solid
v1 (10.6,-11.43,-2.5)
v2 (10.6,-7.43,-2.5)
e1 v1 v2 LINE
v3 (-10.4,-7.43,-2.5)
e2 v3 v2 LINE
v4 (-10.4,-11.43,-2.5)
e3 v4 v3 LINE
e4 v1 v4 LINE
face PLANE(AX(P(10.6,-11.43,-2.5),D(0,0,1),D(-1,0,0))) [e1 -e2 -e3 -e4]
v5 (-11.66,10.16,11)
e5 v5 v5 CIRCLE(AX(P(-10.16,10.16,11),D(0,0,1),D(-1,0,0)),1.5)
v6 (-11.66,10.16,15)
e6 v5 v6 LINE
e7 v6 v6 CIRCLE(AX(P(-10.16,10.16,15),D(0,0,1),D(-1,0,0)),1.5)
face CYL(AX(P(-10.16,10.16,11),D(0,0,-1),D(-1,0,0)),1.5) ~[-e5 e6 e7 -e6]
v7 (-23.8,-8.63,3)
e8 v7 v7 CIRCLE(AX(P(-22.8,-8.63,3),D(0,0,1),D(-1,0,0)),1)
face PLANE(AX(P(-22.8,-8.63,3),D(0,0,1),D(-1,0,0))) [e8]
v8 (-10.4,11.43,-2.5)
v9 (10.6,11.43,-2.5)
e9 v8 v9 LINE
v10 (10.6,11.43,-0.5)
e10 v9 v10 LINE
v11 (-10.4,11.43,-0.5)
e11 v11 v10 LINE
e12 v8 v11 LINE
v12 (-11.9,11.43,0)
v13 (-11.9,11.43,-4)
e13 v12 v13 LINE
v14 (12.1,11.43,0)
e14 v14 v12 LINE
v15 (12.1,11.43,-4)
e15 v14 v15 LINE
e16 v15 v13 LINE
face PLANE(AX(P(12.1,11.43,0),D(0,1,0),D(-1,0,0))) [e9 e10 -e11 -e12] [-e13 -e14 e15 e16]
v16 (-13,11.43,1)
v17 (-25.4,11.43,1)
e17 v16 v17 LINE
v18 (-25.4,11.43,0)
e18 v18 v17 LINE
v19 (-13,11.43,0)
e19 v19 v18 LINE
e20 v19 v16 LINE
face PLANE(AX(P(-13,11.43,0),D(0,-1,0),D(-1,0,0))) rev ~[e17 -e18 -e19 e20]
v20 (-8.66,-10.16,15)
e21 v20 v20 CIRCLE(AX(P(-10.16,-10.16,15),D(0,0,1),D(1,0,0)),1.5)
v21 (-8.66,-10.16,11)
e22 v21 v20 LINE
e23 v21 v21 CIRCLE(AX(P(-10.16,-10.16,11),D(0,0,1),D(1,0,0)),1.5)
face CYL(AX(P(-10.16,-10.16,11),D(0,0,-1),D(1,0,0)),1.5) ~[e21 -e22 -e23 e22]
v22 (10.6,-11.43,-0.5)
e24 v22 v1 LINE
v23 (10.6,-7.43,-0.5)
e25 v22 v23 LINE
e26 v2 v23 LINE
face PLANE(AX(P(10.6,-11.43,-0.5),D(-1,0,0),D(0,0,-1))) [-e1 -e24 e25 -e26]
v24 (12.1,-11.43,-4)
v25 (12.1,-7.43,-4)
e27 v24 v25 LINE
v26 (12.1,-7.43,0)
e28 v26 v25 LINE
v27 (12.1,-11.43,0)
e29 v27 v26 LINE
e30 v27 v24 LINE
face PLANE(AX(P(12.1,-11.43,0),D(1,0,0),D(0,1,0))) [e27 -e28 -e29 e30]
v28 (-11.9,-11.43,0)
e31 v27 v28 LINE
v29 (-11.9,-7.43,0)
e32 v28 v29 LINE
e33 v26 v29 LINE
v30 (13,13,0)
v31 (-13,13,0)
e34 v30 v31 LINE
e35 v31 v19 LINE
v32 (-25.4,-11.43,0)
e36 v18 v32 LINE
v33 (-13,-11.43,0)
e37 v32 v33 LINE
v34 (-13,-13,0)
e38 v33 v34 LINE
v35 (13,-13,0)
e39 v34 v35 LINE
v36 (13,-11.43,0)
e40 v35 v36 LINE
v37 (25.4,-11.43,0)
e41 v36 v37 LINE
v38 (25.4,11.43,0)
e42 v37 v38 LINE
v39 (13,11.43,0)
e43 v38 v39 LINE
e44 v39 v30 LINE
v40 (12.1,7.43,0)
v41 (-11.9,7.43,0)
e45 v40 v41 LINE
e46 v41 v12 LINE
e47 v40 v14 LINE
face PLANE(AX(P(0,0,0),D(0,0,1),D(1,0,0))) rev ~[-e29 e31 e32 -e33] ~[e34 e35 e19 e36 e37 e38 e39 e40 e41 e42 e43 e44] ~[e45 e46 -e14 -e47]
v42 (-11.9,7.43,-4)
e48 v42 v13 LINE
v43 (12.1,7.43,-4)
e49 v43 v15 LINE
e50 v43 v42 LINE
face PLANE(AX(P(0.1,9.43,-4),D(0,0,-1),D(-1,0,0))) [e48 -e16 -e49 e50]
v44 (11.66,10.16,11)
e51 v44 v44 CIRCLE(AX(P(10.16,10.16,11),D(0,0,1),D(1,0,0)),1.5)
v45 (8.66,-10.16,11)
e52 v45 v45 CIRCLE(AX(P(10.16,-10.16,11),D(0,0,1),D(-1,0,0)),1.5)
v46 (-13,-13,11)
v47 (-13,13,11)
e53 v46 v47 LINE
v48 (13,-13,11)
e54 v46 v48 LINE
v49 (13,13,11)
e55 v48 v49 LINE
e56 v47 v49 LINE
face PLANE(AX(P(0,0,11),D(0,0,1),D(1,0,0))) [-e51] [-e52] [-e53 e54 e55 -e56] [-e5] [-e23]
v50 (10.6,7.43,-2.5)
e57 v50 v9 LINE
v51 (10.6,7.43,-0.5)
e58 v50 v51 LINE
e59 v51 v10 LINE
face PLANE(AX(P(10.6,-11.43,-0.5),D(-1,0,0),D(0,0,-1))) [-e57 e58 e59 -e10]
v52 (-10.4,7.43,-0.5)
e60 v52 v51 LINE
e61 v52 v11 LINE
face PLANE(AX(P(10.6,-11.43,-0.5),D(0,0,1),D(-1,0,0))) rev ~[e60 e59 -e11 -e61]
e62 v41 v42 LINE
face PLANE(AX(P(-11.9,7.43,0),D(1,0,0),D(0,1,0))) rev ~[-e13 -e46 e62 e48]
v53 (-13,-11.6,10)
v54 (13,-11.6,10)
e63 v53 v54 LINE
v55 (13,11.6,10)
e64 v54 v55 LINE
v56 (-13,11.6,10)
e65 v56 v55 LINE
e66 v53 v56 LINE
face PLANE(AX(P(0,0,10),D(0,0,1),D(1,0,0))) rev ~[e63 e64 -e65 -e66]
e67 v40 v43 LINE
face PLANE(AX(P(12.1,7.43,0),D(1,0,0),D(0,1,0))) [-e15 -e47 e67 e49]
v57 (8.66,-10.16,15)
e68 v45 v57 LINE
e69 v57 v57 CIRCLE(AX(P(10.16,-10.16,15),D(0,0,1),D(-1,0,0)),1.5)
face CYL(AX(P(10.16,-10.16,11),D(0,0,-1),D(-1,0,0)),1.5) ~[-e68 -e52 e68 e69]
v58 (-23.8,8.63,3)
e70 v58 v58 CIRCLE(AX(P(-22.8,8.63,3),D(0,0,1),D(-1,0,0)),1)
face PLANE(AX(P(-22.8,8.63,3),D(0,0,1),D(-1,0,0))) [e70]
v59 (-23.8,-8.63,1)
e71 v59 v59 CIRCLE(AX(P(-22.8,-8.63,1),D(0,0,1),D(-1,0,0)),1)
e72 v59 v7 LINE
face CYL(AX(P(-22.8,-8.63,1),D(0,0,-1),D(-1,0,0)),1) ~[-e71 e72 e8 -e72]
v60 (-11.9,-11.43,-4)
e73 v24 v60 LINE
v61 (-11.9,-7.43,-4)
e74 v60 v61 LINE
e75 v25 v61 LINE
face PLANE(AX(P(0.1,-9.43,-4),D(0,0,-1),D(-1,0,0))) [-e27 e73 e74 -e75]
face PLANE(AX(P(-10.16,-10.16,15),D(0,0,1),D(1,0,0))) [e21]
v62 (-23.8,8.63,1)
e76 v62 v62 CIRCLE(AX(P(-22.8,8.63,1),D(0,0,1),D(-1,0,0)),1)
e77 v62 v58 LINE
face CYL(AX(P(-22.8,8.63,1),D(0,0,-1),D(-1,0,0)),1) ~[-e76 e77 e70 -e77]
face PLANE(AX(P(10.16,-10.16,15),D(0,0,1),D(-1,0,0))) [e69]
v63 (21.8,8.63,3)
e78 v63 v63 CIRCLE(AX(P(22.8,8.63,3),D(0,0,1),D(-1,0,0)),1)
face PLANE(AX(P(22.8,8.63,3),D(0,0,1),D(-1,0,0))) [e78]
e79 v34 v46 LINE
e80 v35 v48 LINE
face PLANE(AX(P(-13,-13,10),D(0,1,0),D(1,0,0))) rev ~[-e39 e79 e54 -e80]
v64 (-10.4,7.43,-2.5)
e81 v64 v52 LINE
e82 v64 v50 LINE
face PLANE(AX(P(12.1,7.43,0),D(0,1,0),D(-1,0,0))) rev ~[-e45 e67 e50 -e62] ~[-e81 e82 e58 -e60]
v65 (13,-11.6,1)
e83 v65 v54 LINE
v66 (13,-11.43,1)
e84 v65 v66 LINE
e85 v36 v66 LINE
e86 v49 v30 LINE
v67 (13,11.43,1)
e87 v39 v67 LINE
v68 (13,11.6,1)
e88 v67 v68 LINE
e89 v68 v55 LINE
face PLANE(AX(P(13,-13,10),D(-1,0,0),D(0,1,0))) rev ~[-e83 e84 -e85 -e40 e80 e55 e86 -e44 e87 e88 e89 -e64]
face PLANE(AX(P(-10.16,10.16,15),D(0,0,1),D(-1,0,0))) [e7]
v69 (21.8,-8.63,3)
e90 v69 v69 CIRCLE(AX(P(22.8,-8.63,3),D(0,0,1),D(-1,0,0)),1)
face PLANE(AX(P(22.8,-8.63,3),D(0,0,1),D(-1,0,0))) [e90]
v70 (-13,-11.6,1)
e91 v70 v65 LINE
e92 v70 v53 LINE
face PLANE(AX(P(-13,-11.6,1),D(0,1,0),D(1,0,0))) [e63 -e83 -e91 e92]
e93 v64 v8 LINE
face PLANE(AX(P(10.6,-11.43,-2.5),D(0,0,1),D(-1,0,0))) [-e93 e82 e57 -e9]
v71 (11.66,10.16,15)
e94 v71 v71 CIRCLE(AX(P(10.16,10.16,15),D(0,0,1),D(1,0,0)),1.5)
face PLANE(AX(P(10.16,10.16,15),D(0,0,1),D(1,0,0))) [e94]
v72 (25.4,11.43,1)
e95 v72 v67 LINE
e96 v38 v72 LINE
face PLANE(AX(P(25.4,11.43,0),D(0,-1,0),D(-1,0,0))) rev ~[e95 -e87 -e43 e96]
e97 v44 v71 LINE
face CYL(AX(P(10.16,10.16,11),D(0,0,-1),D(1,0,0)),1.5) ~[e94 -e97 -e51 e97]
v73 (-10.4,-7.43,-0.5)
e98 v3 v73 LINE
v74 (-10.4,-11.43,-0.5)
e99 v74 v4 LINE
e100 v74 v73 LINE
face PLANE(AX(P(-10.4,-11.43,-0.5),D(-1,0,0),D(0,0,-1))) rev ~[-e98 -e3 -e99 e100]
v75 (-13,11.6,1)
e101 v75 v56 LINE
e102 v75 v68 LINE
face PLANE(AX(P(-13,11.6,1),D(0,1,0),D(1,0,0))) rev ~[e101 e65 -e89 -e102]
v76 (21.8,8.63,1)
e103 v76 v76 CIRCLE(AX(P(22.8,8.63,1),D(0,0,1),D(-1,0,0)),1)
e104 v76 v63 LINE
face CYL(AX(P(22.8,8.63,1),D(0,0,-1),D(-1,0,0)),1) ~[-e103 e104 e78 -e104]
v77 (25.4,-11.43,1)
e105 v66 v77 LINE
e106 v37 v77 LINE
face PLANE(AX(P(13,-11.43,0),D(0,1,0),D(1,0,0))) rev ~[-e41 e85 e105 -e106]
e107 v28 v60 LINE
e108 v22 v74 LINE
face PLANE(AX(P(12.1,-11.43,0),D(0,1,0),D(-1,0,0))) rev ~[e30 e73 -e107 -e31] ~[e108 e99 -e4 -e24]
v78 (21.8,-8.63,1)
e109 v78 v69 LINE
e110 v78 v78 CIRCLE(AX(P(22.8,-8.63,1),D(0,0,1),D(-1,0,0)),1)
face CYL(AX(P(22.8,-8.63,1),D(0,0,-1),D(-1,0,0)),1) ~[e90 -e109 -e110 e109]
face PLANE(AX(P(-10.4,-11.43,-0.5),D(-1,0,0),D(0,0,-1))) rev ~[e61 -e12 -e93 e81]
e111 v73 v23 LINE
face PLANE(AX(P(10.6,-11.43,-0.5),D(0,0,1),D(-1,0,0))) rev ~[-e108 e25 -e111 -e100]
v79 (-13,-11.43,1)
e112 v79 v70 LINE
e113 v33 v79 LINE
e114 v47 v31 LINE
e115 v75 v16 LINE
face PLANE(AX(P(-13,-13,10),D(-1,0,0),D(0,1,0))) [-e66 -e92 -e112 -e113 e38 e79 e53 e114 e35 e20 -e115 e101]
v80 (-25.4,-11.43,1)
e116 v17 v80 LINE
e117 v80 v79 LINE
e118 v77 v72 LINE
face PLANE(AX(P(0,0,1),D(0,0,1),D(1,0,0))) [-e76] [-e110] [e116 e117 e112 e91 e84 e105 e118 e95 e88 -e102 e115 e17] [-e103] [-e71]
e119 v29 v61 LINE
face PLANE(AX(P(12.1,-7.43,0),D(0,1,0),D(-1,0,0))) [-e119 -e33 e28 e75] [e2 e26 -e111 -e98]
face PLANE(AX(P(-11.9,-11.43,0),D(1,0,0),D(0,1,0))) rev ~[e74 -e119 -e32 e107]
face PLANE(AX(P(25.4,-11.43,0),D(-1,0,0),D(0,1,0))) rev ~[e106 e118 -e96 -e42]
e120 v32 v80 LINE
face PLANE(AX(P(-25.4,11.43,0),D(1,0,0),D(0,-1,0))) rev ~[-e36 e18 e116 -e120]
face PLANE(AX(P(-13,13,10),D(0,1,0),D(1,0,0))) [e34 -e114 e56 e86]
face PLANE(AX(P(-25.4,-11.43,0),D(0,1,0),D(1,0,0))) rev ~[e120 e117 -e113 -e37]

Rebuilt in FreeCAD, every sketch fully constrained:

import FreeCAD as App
import Part
import Sketcher
from FreeCAD import Vector

doc = App.newDocument("Part")
body = doc.addObject("PartDesign::Body", "Body")

# Sketch on XY plane
sketch1 = body.newObject("Sketcher::SketchObject", "Sketch")
sketch1.AttachmentSupport = (doc.getObject("XY_Plane"), [""])
sketch1.MapMode = "FlatFace"
sketch1.addGeometry([
    Part.LineSegment(Vector(-13, -11.4, 0), Vector(-13, -13, 0)),  # 0
    Part.LineSegment(Vector(-13, -13, 0), Vector(13, -13, 0)),  # 1
    Part.LineSegment(Vector(13, -13, 0), Vector(13, -11.4, 0)),  # 2
    Part.LineSegment(Vector(13, -11.4, 0), Vector(25.4, -11.4, 0)),  # 3
    Part.LineSegment(Vector(25.4, -11.4, 0), Vector(25.4, 11.4, 0)),  # 4
    Part.LineSegment(Vector(25.4, 11.4, 0), Vector(13, 11.4, 0)),  # 5
    Part.LineSegment(Vector(13, 11.4, 0), Vector(13, 13, 0)),  # 6
    Part.LineSegment(Vector(13, 13, 0), Vector(-13, 13, 0)),  # 7
    Part.LineSegment(Vector(-13, 13, 0), Vector(-13, 11.4, 0)),  # 8
    Part.LineSegment(Vector(-13, 11.4, 0), Vector(-25.4, 11.4, 0)),  # 9
    Part.LineSegment(Vector(-25.4, 11.4, 0), Vector(-25.4, -11.4, 0)),  # 10
    Part.LineSegment(Vector(-25.4, -11.4, 0), Vector(-13, -11.4, 0)),  # 11
], False)
sketch1.addConstraint([
    Sketcher.Constraint("Coincident", 0, 2, 1, 1),
    Sketcher.Constraint("Coincident", 1, 2, 2, 1),
    Sketcher.Constraint("Coincident", 2, 2, 3, 1),
    Sketcher.Constraint("Coincident", 3, 2, 4, 1),
    Sketcher.Constraint("Coincident", 4, 2, 5, 1),
    Sketcher.Constraint("Coincident", 5, 2, 6, 1),
    Sketcher.Constraint("Coincident", 6, 2, 7, 1),
    Sketcher.Constraint("Coincident", 7, 2, 8, 1),
    Sketcher.Constraint("Coincident", 8, 2, 9, 1),
    Sketcher.Constraint("Coincident", 9, 2, 10, 1),
    Sketcher.Constraint("Coincident", 10, 2, 11, 1),
    Sketcher.Constraint("Coincident", 11, 2, 0, 1),
    Sketcher.Constraint("Vertical", 0),
    Sketcher.Constraint("Horizontal", 1),
    Sketcher.Constraint("Vertical", 2),
    Sketcher.Constraint("Horizontal", 3),
    Sketcher.Constraint("Vertical", 4),
    Sketcher.Constraint("Horizontal", 5),
    Sketcher.Constraint("Vertical", 6),
    Sketcher.Constraint("Horizontal", 7),
    Sketcher.Constraint("Vertical", 8),
    Sketcher.Constraint("Horizontal", 9),
    Sketcher.Constraint("Vertical", 10),
    Sketcher.Constraint("Horizontal", 11),
    Sketcher.Constraint("Symmetric", 0, 2, 6, 2, -1, 1),
    Sketcher.Constraint("Symmetric", 2, 2, 8, 2, -1, 1),
    Sketcher.Constraint("Symmetric", 4, 2, 10, 2, -1, 1),
    Sketcher.Constraint("Symmetric", 5, 2, 8, 2, -2),
    Sketcher.Constraint("DistanceX", 1, 1, 1, 2, 26.0),
    Sketcher.Constraint("DistanceX", 3, 1, 3, 2, 12.4),
    Sketcher.Constraint("DistanceY", 0, 2, -1, 1, 13.0),
    Sketcher.Constraint("DistanceY", 0, 2, 0, 1, 1.57),
])
pad1 = body.newObject("PartDesign::Pad", "Pad")
pad1.Profile = sketch1
pad1.Length = 1

# Sketch on XY plane
sketch2 = body.newObject("Sketcher::SketchObject", "Sketch001")
sketch2.AttachmentSupport = (doc.getObject("XY_Plane"), [""])
sketch2.MapMode = "FlatFace"
sketch2.AttachmentOffset = App.Placement(Vector(0, 0, 1), App.Rotation())
sketch2.addGeometry([
    Part.Circle(Vector(-22.8, -8.6, 0), Vector(0, 0, 1), 1),
    Part.Circle(Vector(-22.8, 8.6, 0), Vector(0, 0, 1), 1),
    Part.Circle(Vector(22.8, -8.6, 0), Vector(0, 0, 1), 1),
    Part.Circle(Vector(22.8, 8.6, 0), Vector(0, 0, 1), 1),
], False)
sketch2.addConstraint([
    Sketcher.Constraint("Equal", 0, 1),
    Sketcher.Constraint("Equal", 1, 2),
    Sketcher.Constraint("Equal", 2, 3),
    Sketcher.Constraint("Symmetric", 1, 3, 2, 3, -1, 1),
    Sketcher.Constraint("Symmetric", 0, 3, 3, 3, -1, 1),
    Sketcher.Constraint("Symmetric", 0, 3, 2, 3, -2),
    Sketcher.Constraint("Diameter", 0, 2.0),
    Sketcher.Constraint("DistanceX", 0, 3, -1, 1, 22.8),
    Sketcher.Constraint("DistanceY", 0, 3, -1, 1, 8.63),
])
pad2 = body.newObject("PartDesign::Pad", "Pad001")
pad2.Profile = sketch2
pad2.Length = 2

# Sketch on XY plane
sketch3 = body.newObject("Sketcher::SketchObject", "Sketch002")
sketch3.AttachmentSupport = (doc.getObject("XY_Plane"), [""])
sketch3.MapMode = "FlatFace"
sketch3.AttachmentOffset = App.Placement(Vector(0, 0, 1), App.Rotation())
sketch3.addGeometry([
    Part.LineSegment(Vector(-13, 13, 0), Vector(-13, 11.6, 0)),  # 0
    Part.LineSegment(Vector(-13, 11.6, 0), Vector(13, 11.6, 0)),  # 1
    Part.LineSegment(Vector(13, 11.6, 0), Vector(13, 13, 0)),  # 2
    Part.LineSegment(Vector(13, 13, 0), Vector(-13, 13, 0)),  # 3
    Part.LineSegment(Vector(-13, -11.6, 0), Vector(-13, -13, 0)),  # 4
    Part.LineSegment(Vector(-13, -13, 0), Vector(13, -13, 0)),  # 5
    Part.LineSegment(Vector(13, -13, 0), Vector(13, -11.6, 0)),  # 6
    Part.LineSegment(Vector(13, -11.6, 0), Vector(-13, -11.6, 0)),  # 7
], False)
sketch3.addConstraint([
    Sketcher.Constraint("Coincident", 0, 2, 1, 1),
    Sketcher.Constraint("Coincident", 1, 2, 2, 1),
    Sketcher.Constraint("Coincident", 2, 2, 3, 1),
    Sketcher.Constraint("Coincident", 3, 2, 0, 1),
    Sketcher.Constraint("Coincident", 4, 2, 5, 1),
    Sketcher.Constraint("Coincident", 5, 2, 6, 1),
    Sketcher.Constraint("Coincident", 6, 2, 7, 1),
    Sketcher.Constraint("Coincident", 7, 2, 4, 1),
    Sketcher.Constraint("Vertical", 0),
    Sketcher.Constraint("Horizontal", 1),
    Sketcher.Constraint("Vertical", 2),
    Sketcher.Constraint("Horizontal", 3),
    Sketcher.Constraint("Vertical", 4),
    Sketcher.Constraint("Horizontal", 5),
    Sketcher.Constraint("Vertical", 6),
    Sketcher.Constraint("Horizontal", 7),
    Sketcher.Constraint("Symmetric", 2, 2, 4, 2, -1, 1),
    Sketcher.Constraint("Symmetric", 0, 2, 6, 2, -1, 1),
    Sketcher.Constraint("Vertical", 3, 2, 4, 2),
    Sketcher.Constraint("DistanceX", 1, 1, 1, 2, 26.0),
    Sketcher.Constraint("DistanceY", 0, 2, 0, 1, 1.4),
    Sketcher.Constraint("DistanceY", -1, 1, 2, 2, 13.0),
])
pad3 = body.newObject("PartDesign::Pad", "Pad002")
pad3.Profile = sketch3
pad3.Length = 9

# Sketch on XY plane
sketch4 = body.newObject("Sketcher::SketchObject", "Sketch003")
sketch4.AttachmentSupport = (doc.getObject("XY_Plane"), [""])
sketch4.MapMode = "FlatFace"
sketch4.AttachmentOffset = App.Placement(Vector(0, 0, 10), App.Rotation())
sketch4.addGeometry([
    Part.LineSegment(Vector(-13, 13, 0), Vector(-13, -13, 0)),
    Part.LineSegment(Vector(-13, -13, 0), Vector(13, -13, 0)),
    Part.LineSegment(Vector(13, -13, 0), Vector(13, 13, 0)),
    Part.LineSegment(Vector(13, 13, 0), Vector(-13, 13, 0)),
], False)
sketch4.addConstraint([
    Sketcher.Constraint("Coincident", 0, 2, 1, 1),
    Sketcher.Constraint("Coincident", 1, 2, 2, 1),
    Sketcher.Constraint("Coincident", 2, 2, 3, 1),
    Sketcher.Constraint("Coincident", 3, 2, 0, 1),
    Sketcher.Constraint("Vertical", 0),
    Sketcher.Constraint("Horizontal", 1),
    Sketcher.Constraint("Vertical", 2),
    Sketcher.Constraint("Horizontal", 3),
    Sketcher.Constraint("Symmetric", 0, 2, 2, 2, -1, 1),
    Sketcher.Constraint("Equal", 3, 0),
    Sketcher.Constraint("DistanceX", 1, 1, 1, 2, 26.0),
])
pad4 = body.newObject("PartDesign::Pad", "Pad003")
pad4.Profile = sketch4
pad4.Length = 1

# Sketch on XY plane
sketch5 = body.newObject("Sketcher::SketchObject", "Sketch004")
sketch5.AttachmentSupport = (doc.getObject("XY_Plane"), [""])
sketch5.MapMode = "FlatFace"
sketch5.AttachmentOffset = App.Placement(Vector(0, 0, 11), App.Rotation())
sketch5.addGeometry([
    Part.Circle(Vector(-10.2, -10.2, 0), Vector(0, 0, 1), 1.5),
    Part.Circle(Vector(10.2, -10.2, 0), Vector(0, 0, 1), 1.5),
    Part.Circle(Vector(10.2, 10.2, 0), Vector(0, 0, 1), 1.5),
    Part.Circle(Vector(-10.2, 10.2, 0), Vector(0, 0, 1), 1.5),
], False)
sketch5.addConstraint([
    Sketcher.Constraint("Equal", 0, 1),
    Sketcher.Constraint("Equal", 1, 2),
    Sketcher.Constraint("Equal", 2, 3),
    Sketcher.Constraint("Symmetric", 0, 3, 2, 3, -1, 1),
    Sketcher.Constraint("Symmetric", 1, 3, 3, 3, -1, 1),
    Sketcher.Constraint("Symmetric", 0, 3, 1, 3, -2),
    Sketcher.Constraint("Diameter", 0, 3.0),
    Sketcher.Constraint("DistanceX", 0, 3, -1, 1, 10.16),
    Sketcher.Constraint("DistanceY", 0, 3, -1, 1, 10.16),
])
pad5 = body.newObject("PartDesign::Pad", "Pad004")
pad5.Profile = sketch5
pad5.Length = 4

# Sketch on XY plane
sketch6 = body.newObject("Sketcher::SketchObject", "Sketch005")
sketch6.AttachmentSupport = (doc.getObject("XY_Plane"), [""])
sketch6.MapMode = "FlatFace"
sketch6.addGeometry([
    Part.LineSegment(Vector(12.1, 11.4, 0), Vector(12.1, 7.4, 0)),  # 0
    Part.LineSegment(Vector(12.1, 7.4, 0), Vector(-11.9, 7.4, 0)),  # 1
    Part.LineSegment(Vector(-11.9, 7.4, 0), Vector(-11.9, 11.4, 0)),  # 2
    Part.LineSegment(Vector(-11.9, 11.4, 0), Vector(12.1, 11.4, 0)),  # 3
    Part.LineSegment(Vector(12.1, -7.4, 0), Vector(12.1, -11.4, 0)),  # 4
    Part.LineSegment(Vector(12.1, -11.4, 0), Vector(-11.9, -11.4, 0)),  # 5
    Part.LineSegment(Vector(-11.9, -11.4, 0), Vector(-11.9, -7.4, 0)),  # 6
    Part.LineSegment(Vector(-11.9, -7.4, 0), Vector(12.1, -7.4, 0)),  # 7
], False)
sketch6.addConstraint([
    Sketcher.Constraint("Coincident", 0, 2, 1, 1),
    Sketcher.Constraint("Coincident", 1, 2, 2, 1),
    Sketcher.Constraint("Coincident", 2, 2, 3, 1),
    Sketcher.Constraint("Coincident", 3, 2, 0, 1),
    Sketcher.Constraint("Coincident", 4, 2, 5, 1),
    Sketcher.Constraint("Coincident", 5, 2, 6, 1),
    Sketcher.Constraint("Coincident", 6, 2, 7, 1),
    Sketcher.Constraint("Coincident", 7, 2, 4, 1),
    Sketcher.Constraint("Vertical", 0),
    Sketcher.Constraint("Horizontal", 1),
    Sketcher.Constraint("Vertical", 2),
    Sketcher.Constraint("Horizontal", 3),
    Sketcher.Constraint("Vertical", 4),
    Sketcher.Constraint("Horizontal", 5),
    Sketcher.Constraint("Vertical", 6),
    Sketcher.Constraint("Horizontal", 7),
    Sketcher.Constraint("Symmetric", 3, 2, 4, 2, -1),
    Sketcher.Constraint("Symmetric", 1, 2, 6, 2, -1),
    Sketcher.Constraint("DistanceX", 1, 2, 1, 1, 24.0),
    Sketcher.Constraint("DistanceY", 0, 2, 0, 1, 4.0),
    Sketcher.Constraint("DistanceX", -1, 1, 0, 2, 12.1),
    Sketcher.Constraint("DistanceY", -1, 1, 0, 2, 7.43),
])
pad6 = body.newObject("PartDesign::Pad", "Pad005")
pad6.Profile = sketch6
pad6.Length = 4
pad6.Reversed = True

# Sketch on XZ plane
sketch7 = body.newObject("Sketcher::SketchObject", "Sketch006")
sketch7.AttachmentSupport = (doc.getObject("XZ_Plane"), [""])
sketch7.MapMode = "FlatFace"
sketch7.AttachmentOffset = App.Placement(Vector(0, 0, 11.43), App.Rotation())
sketch7.addGeometry([
    Part.LineSegment(Vector(10.6, -2.5, 0), Vector(10.6, -0.5, 0)),
    Part.LineSegment(Vector(10.6, -0.5, 0), Vector(-10.4, -0.5, 0)),
    Part.LineSegment(Vector(-10.4, -0.5, 0), Vector(-10.4, -2.5, 0)),
    Part.LineSegment(Vector(-10.4, -2.5, 0), Vector(10.6, -2.5, 0)),
], False)
sketch7.addConstraint([
    Sketcher.Constraint("Coincident", 0, 2, 1, 1),
    Sketcher.Constraint("Coincident", 1, 2, 2, 1),
    Sketcher.Constraint("Coincident", 2, 2, 3, 1),
    Sketcher.Constraint("Coincident", 3, 2, 0, 1),
    Sketcher.Constraint("Vertical", 0),
    Sketcher.Constraint("Horizontal", 1),
    Sketcher.Constraint("Vertical", 2),
    Sketcher.Constraint("Horizontal", 3),
    Sketcher.Constraint("DistanceX", 1, 2, 1, 1, 21.0),
    Sketcher.Constraint("DistanceY", 0, 1, 0, 2, 2.0),
    Sketcher.Constraint("DistanceX", -1, 1, 0, 2, 10.6),
    Sketcher.Constraint("DistanceY", 0, 2, -1, 1, 0.5),
])
pocket1 = body.newObject("PartDesign::Pocket", "Pocket")
pocket1.Profile = sketch7
pocket1.Length = 25

doc.recompute()
